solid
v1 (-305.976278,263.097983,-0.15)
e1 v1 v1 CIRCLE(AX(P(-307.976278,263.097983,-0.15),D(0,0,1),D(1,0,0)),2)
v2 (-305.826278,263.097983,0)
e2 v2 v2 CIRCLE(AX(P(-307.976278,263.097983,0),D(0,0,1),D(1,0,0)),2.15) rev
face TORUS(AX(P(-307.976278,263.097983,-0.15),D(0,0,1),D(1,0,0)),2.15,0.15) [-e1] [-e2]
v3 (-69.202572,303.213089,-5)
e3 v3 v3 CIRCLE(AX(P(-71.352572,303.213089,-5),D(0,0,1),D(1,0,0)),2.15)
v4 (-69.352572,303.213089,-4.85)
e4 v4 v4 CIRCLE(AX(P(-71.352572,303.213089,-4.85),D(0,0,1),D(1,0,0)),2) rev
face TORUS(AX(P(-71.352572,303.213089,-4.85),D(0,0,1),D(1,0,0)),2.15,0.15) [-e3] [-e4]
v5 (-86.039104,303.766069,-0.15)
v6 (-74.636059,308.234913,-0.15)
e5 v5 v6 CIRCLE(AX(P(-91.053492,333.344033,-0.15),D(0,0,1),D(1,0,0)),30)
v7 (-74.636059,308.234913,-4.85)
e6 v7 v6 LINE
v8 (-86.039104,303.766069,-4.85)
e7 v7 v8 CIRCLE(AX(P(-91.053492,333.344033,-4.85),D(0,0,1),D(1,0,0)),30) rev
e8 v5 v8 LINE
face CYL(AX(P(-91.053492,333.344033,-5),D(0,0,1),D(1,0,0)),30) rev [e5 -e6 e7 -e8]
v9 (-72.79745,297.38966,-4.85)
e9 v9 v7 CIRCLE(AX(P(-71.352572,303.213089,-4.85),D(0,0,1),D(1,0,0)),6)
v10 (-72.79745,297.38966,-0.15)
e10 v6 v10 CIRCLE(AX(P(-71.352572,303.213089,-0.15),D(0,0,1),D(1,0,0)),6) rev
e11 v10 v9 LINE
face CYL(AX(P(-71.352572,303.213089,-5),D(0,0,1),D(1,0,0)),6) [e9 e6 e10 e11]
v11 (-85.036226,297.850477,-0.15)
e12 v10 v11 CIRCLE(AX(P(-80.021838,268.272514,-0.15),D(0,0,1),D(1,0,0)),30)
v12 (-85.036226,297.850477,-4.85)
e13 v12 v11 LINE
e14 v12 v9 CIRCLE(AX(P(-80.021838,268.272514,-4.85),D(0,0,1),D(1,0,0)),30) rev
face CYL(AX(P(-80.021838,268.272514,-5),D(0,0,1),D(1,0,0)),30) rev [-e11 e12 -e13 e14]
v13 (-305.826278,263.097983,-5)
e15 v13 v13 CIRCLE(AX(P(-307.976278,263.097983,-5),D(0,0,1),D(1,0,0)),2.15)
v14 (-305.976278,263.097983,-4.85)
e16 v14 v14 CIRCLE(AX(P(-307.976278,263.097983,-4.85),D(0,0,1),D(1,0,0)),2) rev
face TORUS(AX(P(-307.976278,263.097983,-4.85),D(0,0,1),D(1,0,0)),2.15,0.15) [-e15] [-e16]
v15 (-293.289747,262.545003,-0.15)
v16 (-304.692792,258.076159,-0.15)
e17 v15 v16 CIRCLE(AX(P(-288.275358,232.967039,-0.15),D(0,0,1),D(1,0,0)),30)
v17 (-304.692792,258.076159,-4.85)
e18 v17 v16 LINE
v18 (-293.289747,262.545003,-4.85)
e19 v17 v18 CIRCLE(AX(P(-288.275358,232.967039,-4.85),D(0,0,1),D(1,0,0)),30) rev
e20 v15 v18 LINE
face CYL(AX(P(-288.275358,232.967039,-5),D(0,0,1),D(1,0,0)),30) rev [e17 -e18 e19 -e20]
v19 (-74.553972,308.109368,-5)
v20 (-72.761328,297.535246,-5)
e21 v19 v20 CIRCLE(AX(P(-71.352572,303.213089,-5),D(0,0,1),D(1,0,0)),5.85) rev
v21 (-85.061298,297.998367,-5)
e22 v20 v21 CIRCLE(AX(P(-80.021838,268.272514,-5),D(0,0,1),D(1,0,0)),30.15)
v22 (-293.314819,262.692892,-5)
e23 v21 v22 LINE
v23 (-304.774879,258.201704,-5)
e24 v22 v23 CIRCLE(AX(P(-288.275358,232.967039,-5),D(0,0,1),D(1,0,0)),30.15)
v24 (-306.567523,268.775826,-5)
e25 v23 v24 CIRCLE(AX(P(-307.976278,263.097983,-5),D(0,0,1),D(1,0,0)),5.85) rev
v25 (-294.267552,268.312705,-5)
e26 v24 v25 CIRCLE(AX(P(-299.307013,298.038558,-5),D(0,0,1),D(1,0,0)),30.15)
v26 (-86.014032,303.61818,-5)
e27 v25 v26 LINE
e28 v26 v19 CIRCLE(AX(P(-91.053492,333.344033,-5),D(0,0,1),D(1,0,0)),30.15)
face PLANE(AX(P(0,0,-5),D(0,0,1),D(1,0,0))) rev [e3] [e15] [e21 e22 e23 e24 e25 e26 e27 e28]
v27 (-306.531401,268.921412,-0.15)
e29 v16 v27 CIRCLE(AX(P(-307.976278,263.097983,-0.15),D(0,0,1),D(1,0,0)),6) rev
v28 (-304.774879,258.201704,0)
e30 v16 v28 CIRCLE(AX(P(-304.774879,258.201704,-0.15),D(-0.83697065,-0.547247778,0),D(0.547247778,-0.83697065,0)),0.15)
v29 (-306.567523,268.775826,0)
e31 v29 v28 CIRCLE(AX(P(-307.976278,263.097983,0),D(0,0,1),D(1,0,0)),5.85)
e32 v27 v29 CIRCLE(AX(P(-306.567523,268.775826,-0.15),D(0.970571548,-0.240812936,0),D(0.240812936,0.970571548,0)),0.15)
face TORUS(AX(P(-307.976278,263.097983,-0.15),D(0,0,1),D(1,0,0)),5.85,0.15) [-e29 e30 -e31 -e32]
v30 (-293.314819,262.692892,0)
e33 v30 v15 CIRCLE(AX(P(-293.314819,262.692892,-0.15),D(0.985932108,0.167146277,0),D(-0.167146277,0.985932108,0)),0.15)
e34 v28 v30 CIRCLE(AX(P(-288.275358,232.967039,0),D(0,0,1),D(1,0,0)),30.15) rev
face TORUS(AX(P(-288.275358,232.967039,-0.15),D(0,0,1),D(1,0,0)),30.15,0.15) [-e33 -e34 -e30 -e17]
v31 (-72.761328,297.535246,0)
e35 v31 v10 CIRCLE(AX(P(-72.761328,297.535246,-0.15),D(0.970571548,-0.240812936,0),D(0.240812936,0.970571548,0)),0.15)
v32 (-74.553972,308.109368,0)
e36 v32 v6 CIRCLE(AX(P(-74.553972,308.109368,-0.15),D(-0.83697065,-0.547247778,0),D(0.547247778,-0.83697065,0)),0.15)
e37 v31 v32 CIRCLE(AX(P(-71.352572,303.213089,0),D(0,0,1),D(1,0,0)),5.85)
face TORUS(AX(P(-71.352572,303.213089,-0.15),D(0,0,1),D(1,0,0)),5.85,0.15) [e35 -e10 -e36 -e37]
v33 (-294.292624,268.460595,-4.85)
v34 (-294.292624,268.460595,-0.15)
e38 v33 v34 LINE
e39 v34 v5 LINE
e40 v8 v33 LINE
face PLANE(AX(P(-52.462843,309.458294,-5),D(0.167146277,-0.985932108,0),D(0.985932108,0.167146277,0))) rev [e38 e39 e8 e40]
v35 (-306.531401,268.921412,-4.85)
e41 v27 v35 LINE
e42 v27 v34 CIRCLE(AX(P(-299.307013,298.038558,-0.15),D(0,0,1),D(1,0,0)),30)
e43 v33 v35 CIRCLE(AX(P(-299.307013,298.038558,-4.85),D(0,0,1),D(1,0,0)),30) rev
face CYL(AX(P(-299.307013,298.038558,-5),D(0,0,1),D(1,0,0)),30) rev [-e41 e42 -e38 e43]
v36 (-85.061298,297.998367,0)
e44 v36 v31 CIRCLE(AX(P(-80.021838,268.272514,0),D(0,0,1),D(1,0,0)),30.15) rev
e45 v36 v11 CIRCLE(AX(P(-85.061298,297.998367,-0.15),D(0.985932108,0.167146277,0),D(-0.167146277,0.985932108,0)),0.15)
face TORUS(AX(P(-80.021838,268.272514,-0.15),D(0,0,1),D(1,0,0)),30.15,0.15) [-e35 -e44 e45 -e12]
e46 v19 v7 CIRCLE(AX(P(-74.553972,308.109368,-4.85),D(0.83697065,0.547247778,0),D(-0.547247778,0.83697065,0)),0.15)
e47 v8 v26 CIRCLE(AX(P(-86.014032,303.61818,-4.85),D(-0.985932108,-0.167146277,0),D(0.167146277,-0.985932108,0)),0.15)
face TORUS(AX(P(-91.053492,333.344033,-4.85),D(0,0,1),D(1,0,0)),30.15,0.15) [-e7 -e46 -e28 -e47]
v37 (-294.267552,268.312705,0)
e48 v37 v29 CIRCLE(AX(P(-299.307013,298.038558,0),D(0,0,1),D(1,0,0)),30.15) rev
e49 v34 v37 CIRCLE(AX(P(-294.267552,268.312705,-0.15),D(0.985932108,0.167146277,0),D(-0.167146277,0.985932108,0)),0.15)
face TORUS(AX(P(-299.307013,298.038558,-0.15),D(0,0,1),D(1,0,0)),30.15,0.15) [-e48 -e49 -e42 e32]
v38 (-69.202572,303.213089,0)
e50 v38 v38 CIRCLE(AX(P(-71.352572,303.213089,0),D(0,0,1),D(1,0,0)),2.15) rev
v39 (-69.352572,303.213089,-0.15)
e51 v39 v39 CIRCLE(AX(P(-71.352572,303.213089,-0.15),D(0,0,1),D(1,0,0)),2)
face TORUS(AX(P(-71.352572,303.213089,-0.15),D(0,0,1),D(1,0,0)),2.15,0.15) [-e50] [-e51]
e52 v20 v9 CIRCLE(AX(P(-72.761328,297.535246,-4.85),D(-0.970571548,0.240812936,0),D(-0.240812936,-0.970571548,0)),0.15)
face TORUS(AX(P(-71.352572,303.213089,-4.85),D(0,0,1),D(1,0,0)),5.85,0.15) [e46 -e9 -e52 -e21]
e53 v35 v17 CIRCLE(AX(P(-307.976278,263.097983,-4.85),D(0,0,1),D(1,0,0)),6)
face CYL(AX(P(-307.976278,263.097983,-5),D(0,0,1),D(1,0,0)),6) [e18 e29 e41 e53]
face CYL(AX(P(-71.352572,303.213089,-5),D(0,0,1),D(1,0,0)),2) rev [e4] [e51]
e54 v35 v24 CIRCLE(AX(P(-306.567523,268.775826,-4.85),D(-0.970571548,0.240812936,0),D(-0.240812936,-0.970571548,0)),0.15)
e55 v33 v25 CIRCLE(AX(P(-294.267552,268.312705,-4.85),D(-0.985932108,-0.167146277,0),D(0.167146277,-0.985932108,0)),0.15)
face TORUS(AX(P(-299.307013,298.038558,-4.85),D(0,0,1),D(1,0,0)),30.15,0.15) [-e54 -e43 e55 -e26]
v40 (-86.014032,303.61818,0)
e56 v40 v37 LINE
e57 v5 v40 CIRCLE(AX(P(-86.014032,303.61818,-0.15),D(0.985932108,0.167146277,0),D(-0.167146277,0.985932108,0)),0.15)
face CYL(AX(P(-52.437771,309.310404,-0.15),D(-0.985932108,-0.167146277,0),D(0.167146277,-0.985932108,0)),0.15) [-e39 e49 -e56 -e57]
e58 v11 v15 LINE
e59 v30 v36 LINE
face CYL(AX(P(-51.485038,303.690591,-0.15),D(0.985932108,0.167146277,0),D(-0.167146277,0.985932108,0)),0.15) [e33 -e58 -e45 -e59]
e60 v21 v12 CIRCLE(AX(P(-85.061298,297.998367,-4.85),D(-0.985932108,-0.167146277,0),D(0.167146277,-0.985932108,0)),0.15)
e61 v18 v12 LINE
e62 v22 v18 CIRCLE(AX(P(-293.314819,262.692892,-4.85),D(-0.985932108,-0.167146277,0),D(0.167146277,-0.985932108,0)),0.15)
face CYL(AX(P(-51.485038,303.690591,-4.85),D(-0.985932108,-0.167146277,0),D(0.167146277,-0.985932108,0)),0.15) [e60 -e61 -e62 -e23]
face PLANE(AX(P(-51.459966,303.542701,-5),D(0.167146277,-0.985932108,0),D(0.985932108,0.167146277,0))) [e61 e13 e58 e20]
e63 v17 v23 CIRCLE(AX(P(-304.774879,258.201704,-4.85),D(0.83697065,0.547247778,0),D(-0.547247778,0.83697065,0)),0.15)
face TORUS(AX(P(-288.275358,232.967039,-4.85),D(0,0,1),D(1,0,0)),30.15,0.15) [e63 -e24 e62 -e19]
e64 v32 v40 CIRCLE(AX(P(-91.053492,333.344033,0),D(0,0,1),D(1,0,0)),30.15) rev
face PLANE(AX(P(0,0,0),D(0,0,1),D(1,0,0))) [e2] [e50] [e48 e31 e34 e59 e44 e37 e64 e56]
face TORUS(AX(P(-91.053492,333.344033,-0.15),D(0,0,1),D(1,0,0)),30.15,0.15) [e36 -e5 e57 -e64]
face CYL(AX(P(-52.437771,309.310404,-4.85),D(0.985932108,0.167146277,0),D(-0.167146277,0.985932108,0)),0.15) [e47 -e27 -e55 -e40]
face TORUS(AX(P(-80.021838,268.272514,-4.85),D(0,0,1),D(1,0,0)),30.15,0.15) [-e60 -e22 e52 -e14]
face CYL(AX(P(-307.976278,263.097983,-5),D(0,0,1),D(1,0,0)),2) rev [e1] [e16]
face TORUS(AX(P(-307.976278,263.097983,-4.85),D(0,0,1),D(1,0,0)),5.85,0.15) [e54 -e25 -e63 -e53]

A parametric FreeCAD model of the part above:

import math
import FreeCAD as App
import Part
import Sketcher
from FreeCAD import Vector
Q = App.Units.Quantity


def edges_at(feature, points):
    """Names of the edges that pass closest to the given points."""
    edges = feature.Shape.Edges
    near = lambda p: min(range(len(edges)), key=lambda i: edges[i].distToShape(Part.Vertex(*p))[0])
    return sorted({f"Edge{near(p) + 1}" for p in points})

doc = App.newDocument("Part")
body = doc.addObject("PartDesign::Body", "Body")

sketch1 = body.newObject("Sketcher::SketchObject", "Sketch")
sketch1.AttachmentSupport = (doc.getObject("XY_Plane"), [""])
sketch1.MapMode = "FlatFace"
sketch1.addGeometry([
    Part.ArcOfCircle(Part.Circle(Vector(-307.976278, 263.097983, 0), Vector(0, 0, 1), 6), math.radians(39.621939), math.radians(339.621939)),
    Part.LineSegment(Vector(-302.351786, 261.008704, 0), Vector(-75.974187, 299.386775, 0)),
    Part.ArcOfCircle(Part.Circle(Vector(-71.352572, 303.213089, 0), Vector(0, 0, 1), 6), math.radians(-140.378061), math.radians(159.621939)),
    Part.LineSegment(Vector(-76.977065, 305.302368, 0), Vector(-303.354664, 266.924297, 0)),
    Part.Circle(Vector(-307.976278, 263.097983, 0), Vector(0, 0, 1), 2),
    Part.Circle(Vector(-71.352572, 303.213089, 0), Vector(0, 0, 1), 2),
], False)
sketch1.addConstraint([
    Sketcher.Constraint("Coincident", 0, 2, 1, 1),
    Sketcher.Constraint("Coincident", 1, 2, 2, 1),
    Sketcher.Constraint("Coincident", 2, 2, 3, 1),
    Sketcher.Constraint("Coincident", 3, 2, 0, 1),
    Sketcher.Constraint("Coincident", 4, 3, 0, 3),
    Sketcher.Constraint("Coincident", 5, 3, 2, 3),
    Sketcher.Constraint("Equal", 0, 2),
    Sketcher.Constraint("Equal", 4, 5),
    Sketcher.Constraint("Parallel", 1, 3),
    Sketcher.Constraint("Equal", 1, 3),
    Sketcher.Constraint("Diameter", 4, Q("4 mm")),
    Sketcher.Constraint("Radius", 0, Q("6 mm")),
    Sketcher.Constraint("DistanceX", 0, 2, 1, 2, Q("226.377599 mm")),
    Sketcher.Constraint("DistanceX", 0, 3, -1, 1, Q("307.976278 mm")),
    Sketcher.Constraint("DistanceY", -1, 1, 2, 3, Q("303.213089 mm")),
    Sketcher.Constraint("DistanceY", -1, 1, 2, 2, Q("305.302368 mm")),
    Sketcher.Constraint("DistanceY", 0, 2, 1, 2, Q("38.378071 mm")),
    Sketcher.Constraint("DistanceX", 0, 2, 2, 2, Q("225.374721 mm")),
])
pad1 = body.newObject("PartDesign::Pad", "Pad")
pad1.Profile = sketch1
pad1.Length = 5
pad1.Reversed = True
doc.recompute()

fillet = body.newObject("PartDesign::Fillet", "Fillet")
fillet.Base = (pad1, edges_at(pad1, [
    (-303.355, 266.924, -2.5),
    (-76.977, 305.302, -2.5),
    (-75.974, 299.387, -2.5),
    (-302.352, 261.009, -2.5),
]))
fillet.Radius = 30
doc.recompute()

fillet2 = body.newObject("PartDesign::Fillet", "Fillet001")
fillet2.Base = (fillet, edges_at(fillet, [
    (-313.892, 262.095, 0),
    (-313.892, 262.095, -5),
    (-189.163, 280.198, 0),
    (-189.163, 280.198, -5),
    (-65.437, 304.216, 0),
    (-309.976, 263.098, -5),
    (-65.437, 304.216, -5),
    (-190.166, 286.113, 0),
    (-190.166, 286.113, -5),
    (-299.222, 260.899, 0),
    (-299.222, 260.899, -5),
    (-73.353, 303.213, -5),
    (-78.893, 298.251, 0),
    (-78.893, 298.251, -5),
    (-80.107, 305.412, 0),
    (-80.107, 305.412, -5),
    (-300.436, 268.06, 0),
    (-300.436, 268.06, -5),
    (-73.353, 303.213, 0),
    (-309.976, 263.098, 0),
]))
fillet2.Radius = 0.15

doc.recompute()
